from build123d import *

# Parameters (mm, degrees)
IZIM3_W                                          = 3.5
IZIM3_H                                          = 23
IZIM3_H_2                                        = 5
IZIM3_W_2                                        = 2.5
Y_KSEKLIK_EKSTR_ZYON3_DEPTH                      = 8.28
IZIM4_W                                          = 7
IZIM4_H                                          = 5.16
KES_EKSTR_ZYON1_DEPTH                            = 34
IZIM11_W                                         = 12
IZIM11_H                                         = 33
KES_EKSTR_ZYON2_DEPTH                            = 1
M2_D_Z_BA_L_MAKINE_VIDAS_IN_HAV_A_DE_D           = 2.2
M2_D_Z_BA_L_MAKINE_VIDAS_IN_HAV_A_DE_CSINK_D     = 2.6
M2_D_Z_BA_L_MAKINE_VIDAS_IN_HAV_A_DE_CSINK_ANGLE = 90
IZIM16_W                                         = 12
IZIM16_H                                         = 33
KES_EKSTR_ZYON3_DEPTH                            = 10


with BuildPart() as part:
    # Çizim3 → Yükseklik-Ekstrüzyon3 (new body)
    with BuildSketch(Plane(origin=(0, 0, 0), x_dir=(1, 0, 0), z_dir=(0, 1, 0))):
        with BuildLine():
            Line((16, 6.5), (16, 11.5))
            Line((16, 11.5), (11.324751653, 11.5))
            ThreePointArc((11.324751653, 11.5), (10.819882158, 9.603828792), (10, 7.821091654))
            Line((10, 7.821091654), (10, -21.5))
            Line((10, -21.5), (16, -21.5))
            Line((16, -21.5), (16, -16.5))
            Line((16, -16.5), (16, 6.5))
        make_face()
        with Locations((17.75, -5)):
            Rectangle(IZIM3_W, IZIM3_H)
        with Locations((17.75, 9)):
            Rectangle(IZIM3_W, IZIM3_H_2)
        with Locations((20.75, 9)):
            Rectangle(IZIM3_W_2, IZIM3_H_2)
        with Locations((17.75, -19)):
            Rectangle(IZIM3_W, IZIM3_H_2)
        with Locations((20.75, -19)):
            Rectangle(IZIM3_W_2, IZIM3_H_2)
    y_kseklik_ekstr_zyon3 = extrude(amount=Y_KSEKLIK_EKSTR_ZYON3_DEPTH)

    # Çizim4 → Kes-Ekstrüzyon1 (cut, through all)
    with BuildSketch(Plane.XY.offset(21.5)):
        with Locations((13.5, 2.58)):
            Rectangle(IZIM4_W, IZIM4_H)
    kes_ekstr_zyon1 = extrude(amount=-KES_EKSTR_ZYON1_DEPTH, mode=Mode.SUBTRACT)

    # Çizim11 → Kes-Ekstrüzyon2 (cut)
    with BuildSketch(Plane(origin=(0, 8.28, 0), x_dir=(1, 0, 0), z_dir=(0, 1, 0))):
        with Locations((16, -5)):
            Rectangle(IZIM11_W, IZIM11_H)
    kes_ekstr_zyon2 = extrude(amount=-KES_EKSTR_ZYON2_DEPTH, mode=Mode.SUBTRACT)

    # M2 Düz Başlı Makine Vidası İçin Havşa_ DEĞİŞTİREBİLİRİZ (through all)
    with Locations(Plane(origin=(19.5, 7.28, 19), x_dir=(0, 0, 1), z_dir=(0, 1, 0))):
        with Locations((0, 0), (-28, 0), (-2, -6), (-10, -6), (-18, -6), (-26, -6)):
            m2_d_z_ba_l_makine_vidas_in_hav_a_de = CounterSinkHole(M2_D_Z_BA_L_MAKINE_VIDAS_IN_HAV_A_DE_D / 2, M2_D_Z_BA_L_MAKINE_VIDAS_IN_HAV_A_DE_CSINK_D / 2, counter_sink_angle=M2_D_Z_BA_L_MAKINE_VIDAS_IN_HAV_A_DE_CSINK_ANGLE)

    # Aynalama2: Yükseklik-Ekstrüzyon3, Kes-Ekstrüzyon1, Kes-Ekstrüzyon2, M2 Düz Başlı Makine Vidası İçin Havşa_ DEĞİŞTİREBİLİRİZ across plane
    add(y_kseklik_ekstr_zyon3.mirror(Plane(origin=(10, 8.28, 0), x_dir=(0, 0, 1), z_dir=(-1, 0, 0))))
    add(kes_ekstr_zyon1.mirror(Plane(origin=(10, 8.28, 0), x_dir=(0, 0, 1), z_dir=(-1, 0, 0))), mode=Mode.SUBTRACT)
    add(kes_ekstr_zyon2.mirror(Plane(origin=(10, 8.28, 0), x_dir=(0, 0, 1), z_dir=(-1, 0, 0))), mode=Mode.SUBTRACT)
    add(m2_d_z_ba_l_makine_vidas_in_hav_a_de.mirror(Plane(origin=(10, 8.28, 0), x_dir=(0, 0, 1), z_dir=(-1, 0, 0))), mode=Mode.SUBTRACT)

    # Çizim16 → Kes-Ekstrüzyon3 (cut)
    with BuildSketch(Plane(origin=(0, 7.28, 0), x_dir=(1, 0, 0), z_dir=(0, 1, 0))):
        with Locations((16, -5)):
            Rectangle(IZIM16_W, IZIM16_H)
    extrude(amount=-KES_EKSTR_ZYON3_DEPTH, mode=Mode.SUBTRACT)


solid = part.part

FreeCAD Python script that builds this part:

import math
import FreeCAD as App
import Part
import Sketcher
Q = App.Units.Quantity


def add_polygon(sketch, points):
    """Adds a closed chain of lines whose ends are joined by coincident constraints."""
    first, n = sketch.GeometryCount, len(points)
    for a, b in zip(points, points[1:] + points[:1]):
        sketch.addGeometry(Part.LineSegment(App.Vector(*a, 0), App.Vector(*b, 0)), False)
    for i in range(n):
        sketch.addConstraint(Sketcher.Constraint("Coincident", first + i, 2, first + (i + 1) % n, 1))

doc = App.newDocument("Part")
body = doc.addObject("PartDesign::Body", "Body")

# Sketch on XZ plane
sketch1 = body.newObject("Sketcher::SketchObject", "Sketch")
sketch1.AttachmentSupport = (doc.getObject("XZ_Plane"), [""])
sketch1.MapMode = "FlatFace"
sketch1.addGeometry(Part.ArcOfCircle(Part.Circle(App.Vector(0, -13.5, 0), App.Vector(0, 0, 1), 11.5), math.radians(10.02), math.radians(29.59)), False)
sketch1.addGeometry(Part.LineSegment(App.Vector(10, -7.8, 0), App.Vector(10, 21.5, 0)), False)
sketch1.addGeometry(Part.LineSegment(App.Vector(10, 21.5, 0), App.Vector(22, 21.5, 0)), False)
sketch1.addGeometry(Part.LineSegment(App.Vector(22, 21.5, 0), App.Vector(22, 16.5, 0)), False)
sketch1.addGeometry(Part.LineSegment(App.Vector(22, 16.5, 0), App.Vector(19.5, 16.5, 0)), False)
sketch1.addGeometry(Part.LineSegment(App.Vector(19.5, 16.5, 0), App.Vector(19.5, -6.5, 0)), False)
sketch1.addGeometry(Part.LineSegment(App.Vector(19.5, -6.5, 0), App.Vector(22, -6.5, 0)), False)
sketch1.addGeometry(Part.LineSegment(App.Vector(22, -6.5, 0), App.Vector(22, -11.5, 0)), False)
sketch1.addGeometry(Part.LineSegment(App.Vector(22, -11.5, 0), App.Vector(11.3, -11.5, 0)), False)
sketch1.addConstraint(Sketcher.Constraint("Coincident", 0, 2, 1, 1))
sketch1.addConstraint(Sketcher.Constraint("Coincident", 1, 2, 2, 1))
sketch1.addConstraint(Sketcher.Constraint("Coincident", 2, 2, 3, 1))
sketch1.addConstraint(Sketcher.Constraint("Coincident", 3, 2, 4, 1))
sketch1.addConstraint(Sketcher.Constraint("Coincident", 4, 2, 5, 1))
sketch1.addConstraint(Sketcher.Constraint("Coincident", 5, 2, 6, 1))
sketch1.addConstraint(Sketcher.Constraint("Coincident", 6, 2, 7, 1))
sketch1.addConstraint(Sketcher.Constraint("Coincident", 7, 2, 8, 1))
sketch1.addConstraint(Sketcher.Constraint("Coincident", 8, 2, 0, 1))
sketch1.addConstraint(Sketcher.Constraint("Vertical", 1))
sketch1.addConstraint(Sketcher.Constraint("Horizontal", 2))
sketch1.addConstraint(Sketcher.Constraint("Vertical", 3))
sketch1.addConstraint(Sketcher.Constraint("Horizontal", 4))
sketch1.addConstraint(Sketcher.Constraint("Vertical", 5))
sketch1.addConstraint(Sketcher.Constraint("Horizontal", 6))
sketch1.addConstraint(Sketcher.Constraint("Vertical", 7))
sketch1.addConstraint(Sketcher.Constraint("Horizontal", 8))
sketch1.addConstraint(Sketcher.Constraint("PointOnObject", 0, 3, -2))
sketch1.addConstraint(Sketcher.Constraint("Vertical", 3, 2, 6, 2))
sketch1.addConstraint(Sketcher.Constraint("Equal", 3, 7))
sketch1.addConstraint(Sketcher.Constraint("Radius", 0, Q("11.5 mm")))
sketch1.addConstraint(Sketcher.Constraint("DistanceX", 2, 1, 2, 2, Q("12 mm")))
sketch1.addConstraint(Sketcher.Constraint("DistanceY", 3, 2, 3, 1, Q("5 mm")))
sketch1.addConstraint(Sketcher.Constraint("DistanceY", 5, 2, 5, 1, Q("23 mm")))
sketch1.addConstraint(Sketcher.Constraint("DistanceX", 4, 2, 4, 1, Q("2.5 mm")))
sketch1.addConstraint(Sketcher.Constraint("DistanceX", -1, 1, 0, 2, Q("10 mm")))
sketch1.addConstraint(Sketcher.Constraint("DistanceY", 0, 3, 1, 2, Q("35 mm")))
sketch1.addConstraint(Sketcher.Constraint("DistanceY", 0, 3, -1, 1, Q("13.5 mm")))
pad1 = body.newObject("PartDesign::Pad", "Pad")
pad1.Profile = sketch1
pad1.Length = 8.28
pad1.Reversed = True

# Sketch on XY plane
sketch2 = body.newObject("Sketcher::SketchObject", "Sketch001")
sketch2.AttachmentSupport = (doc.getObject("XY_Plane"), [""])
sketch2.MapMode = "FlatFace"
sketch2.AttachmentOffset = App.Placement(App.Vector(0, 0, 21.5), App.Rotation())
add_polygon(sketch2, [(10, 5), (10, 0), (17, 0), (17, 5)])  # lines 0-3
sketch2.addConstraint(Sketcher.Constraint("Vertical", 0))
sketch2.addConstraint(Sketcher.Constraint("Horizontal", 1))
sketch2.addConstraint(Sketcher.Constraint("Vertical", 2))
sketch2.addConstraint(Sketcher.Constraint("Horizontal", 3))
sketch2.addConstraint(Sketcher.Constraint("PointOnObject", 0, 2, -1))
sketch2.addConstraint(Sketcher.Constraint("DistanceX", 1, 1, 1, 2, Q("7 mm")))
sketch2.addConstraint(Sketcher.Constraint("DistanceX", -1, 1, 0, 2, Q("10 mm")))
sketch2.addConstraint(Sketcher.Constraint("DistanceY", 0, 2, 0, 1, Q("5.16 mm")))
pocket1 = body.newObject("PartDesign::Pocket", "Pocket")
pocket1.Profile = sketch2
pocket1.Type = "ThroughAll"

# Sketch on XZ plane
sketch3 = body.newObject("Sketcher::SketchObject", "Sketch002")
sketch3.AttachmentSupport = (doc.getObject("XZ_Plane"), [""])
sketch3.MapMode = "FlatFace"
sketch3.AttachmentOffset = App.Placement(App.Vector(0, 0, -8.28), App.Rotation())
add_polygon(sketch3, [(10, -12), (10, 22), (22, 22), (22, -12)])  # lines 0-3
sketch3.addConstraint(Sketcher.Constraint("Vertical", 0))
sketch3.addConstraint(Sketcher.Constraint("Horizontal", 1))
sketch3.addConstraint(Sketcher.Constraint("Vertical", 2))
sketch3.addConstraint(Sketcher.Constraint("Horizontal", 3))
sketch3.addConstraint(Sketcher.Constraint("DistanceX", 1, 1, 1, 2, Q("12 mm")))
sketch3.addConstraint(Sketcher.Constraint("DistanceY", 0, 1, 0, 2, Q("33 mm")))
sketch3.addConstraint(Sketcher.Constraint("DistanceX", -1, 1, 0, 2, Q("10 mm")))
sketch3.addConstraint(Sketcher.Constraint("DistanceY", -1, 1, 0, 2, Q("21.5 mm")))
pocket2 = body.newObject("PartDesign::Pocket", "Pocket001")
pocket2.Profile = sketch3
pocket2.Length = 1
pocket2.Reversed = True

# Sketch on XZ plane
sketch4 = body.newObject("Sketcher::SketchObject", "Sketch003")
sketch4.AttachmentSupport = (doc.getObject("XZ_Plane"), [""])
sketch4.MapMode = "FlatFace"
sketch4.AttachmentOffset = App.Placement(App.Vector(0, 0, -7.28), App.Rotation())
sketch4.addGeometry(Part.Circle(App.Vector(19.5, 19, 0), App.Vector(0, 0, 1), 1.1), False)
sketch4.addGeometry(Part.Circle(App.Vector(19.5, -9, 0), App.Vector(0, 0, 1), 1.1), False)
sketch4.addGeometry(Part.Circle(App.Vector(13.5, 17, 0), App.Vector(0, 0, 1), 1.1), False)
sketch4.addGeometry(Part.Circle(App.Vector(13.5, 9, 0), App.Vector(0, 0, 1), 1.1), False)
sketch4.addGeometry(Part.Circle(App.Vector(13.5, 1, 0), App.Vector(0, 0, 1), 1.1), False)
sketch4.addGeometry(Part.Circle(App.Vector(13.5, -7, 0), App.Vector(0, 0, 1), 1.1), False)
sketch4.addConstraint(Sketcher.Constraint("Equal", 0, 1))
sketch4.addConstraint(Sketcher.Constraint("Equal", 1, 2))
sketch4.addConstraint(Sketcher.Constraint("Equal", 2, 3))
sketch4.addConstraint(Sketcher.Constraint("Equal", 3, 4))
sketch4.addConstraint(Sketcher.Constraint("Equal", 4, 5))
sketch4.addConstraint(Sketcher.Constraint("Vertical", 0, 3, 1, 3))
sketch4.addConstraint(Sketcher.Constraint("Vertical", 2, 3, 3, 3))
sketch4.addConstraint(Sketcher.Constraint("Vertical", 3, 3, 4, 3))
sketch4.addConstraint(Sketcher.Constraint("Vertical", 4, 3, 5, 3))
sketch4.addConstraint(Sketcher.Constraint("Diameter", 0, Q("2.2 mm")))
sketch4.addConstraint(Sketcher.Constraint("DistanceY", -1, 1, 0, 3, Q("19 mm")))
sketch4.addConstraint(Sketcher.Constraint("DistanceY", 1, 3, -1, 1, Q("9 mm")))
sketch4.addConstraint(Sketcher.Constraint("DistanceY", -1, 1, 2, 3, Q("17 mm")))
sketch4.addConstraint(Sketcher.Constraint("DistanceY", -1, 1, 3, 3, Q("9 mm")))
sketch4.addConstraint(Sketcher.Constraint("DistanceY", -1, 1, 4, 3, Q("1 mm")))
sketch4.addConstraint(Sketcher.Constraint("DistanceY", 5, 3, -1, 1, Q("7 mm")))
sketch4.addConstraint(Sketcher.Constraint("DistanceX", 2, 3, 0, 3, Q("6 mm")))
sketch4.addConstraint(Sketcher.Constraint("DistanceX", -1, 1, 0, 3, Q("19.5 mm")))
doc.recompute()
hole = body.newObject("PartDesign::Hole", "Hole")
hole.Profile = sketch4
hole.ThreadType = "None"
hole.Diameter = 2.2
hole.DepthType = "ThroughAll"
hole.HoleCutType = "Countersink"
hole.HoleCutDiameter = 2.6
hole.HoleCutCountersinkAngle = 90
hole.Reversed = True
doc.recompute()

datumplane = body.newObject("PartDesign::Plane", "DatumPlane")
datumplane.AttachmentSupport = (doc.getObject("YZ_Plane"), [""])
datumplane.MapMode = "FlatFace"
datumplane.AttachmentOffset = App.Placement(App.Vector(0, 0, 10), App.Rotation())
mirrored = body.newObject("PartDesign::Mirrored", "Mirrored")
mirrored.Originals = [pad1, pocket1, pocket2, hole]
mirrored.MirrorPlane = (datumplane, [""])
body.Tip = mirrored

# Sketch on XZ plane
sketch5 = body.newObject("Sketcher::SketchObject", "Sketch004")
sketch5.AttachmentSupport = (doc.getObject("XZ_Plane"), [""])
sketch5.MapMode = "FlatFace"
sketch5.AttachmentOffset = App.Placement(App.Vector(0, 0, -7.28), App.Rotation())
add_polygon(sketch5, [(10, -12), (10, 22), (22, 22), (22, -12)])  # lines 0-3
sketch5.addConstraint(Sketcher.Constraint("Vertical", 0))
sketch5.addConstraint(Sketcher.Constraint("Horizontal", 1))
sketch5.addConstraint(Sketcher.Constraint("Vertical", 2))
sketch5.addConstraint(Sketcher.Constraint("Horizontal", 3))
sketch5.addConstraint(Sketcher.Constraint("DistanceX", 1, 1, 1, 2, Q("12 mm")))
sketch5.addConstraint(Sketcher.Constraint("DistanceY", 0, 1, 0, 2, Q("33 mm")))
sketch5.addConstraint(Sketcher.Constraint("DistanceX", -1, 1, 0, 2, Q("10 mm")))
sketch5.addConstraint(Sketcher.Constraint("DistanceY", -1, 1, 0, 2, Q("21.5 mm")))
pocket3 = body.newObject("PartDesign::Pocket", "Pocket002")
pocket3.Profile = sketch5
pocket3.Length = 10
pocket3.Reversed = True

doc.recompute()
